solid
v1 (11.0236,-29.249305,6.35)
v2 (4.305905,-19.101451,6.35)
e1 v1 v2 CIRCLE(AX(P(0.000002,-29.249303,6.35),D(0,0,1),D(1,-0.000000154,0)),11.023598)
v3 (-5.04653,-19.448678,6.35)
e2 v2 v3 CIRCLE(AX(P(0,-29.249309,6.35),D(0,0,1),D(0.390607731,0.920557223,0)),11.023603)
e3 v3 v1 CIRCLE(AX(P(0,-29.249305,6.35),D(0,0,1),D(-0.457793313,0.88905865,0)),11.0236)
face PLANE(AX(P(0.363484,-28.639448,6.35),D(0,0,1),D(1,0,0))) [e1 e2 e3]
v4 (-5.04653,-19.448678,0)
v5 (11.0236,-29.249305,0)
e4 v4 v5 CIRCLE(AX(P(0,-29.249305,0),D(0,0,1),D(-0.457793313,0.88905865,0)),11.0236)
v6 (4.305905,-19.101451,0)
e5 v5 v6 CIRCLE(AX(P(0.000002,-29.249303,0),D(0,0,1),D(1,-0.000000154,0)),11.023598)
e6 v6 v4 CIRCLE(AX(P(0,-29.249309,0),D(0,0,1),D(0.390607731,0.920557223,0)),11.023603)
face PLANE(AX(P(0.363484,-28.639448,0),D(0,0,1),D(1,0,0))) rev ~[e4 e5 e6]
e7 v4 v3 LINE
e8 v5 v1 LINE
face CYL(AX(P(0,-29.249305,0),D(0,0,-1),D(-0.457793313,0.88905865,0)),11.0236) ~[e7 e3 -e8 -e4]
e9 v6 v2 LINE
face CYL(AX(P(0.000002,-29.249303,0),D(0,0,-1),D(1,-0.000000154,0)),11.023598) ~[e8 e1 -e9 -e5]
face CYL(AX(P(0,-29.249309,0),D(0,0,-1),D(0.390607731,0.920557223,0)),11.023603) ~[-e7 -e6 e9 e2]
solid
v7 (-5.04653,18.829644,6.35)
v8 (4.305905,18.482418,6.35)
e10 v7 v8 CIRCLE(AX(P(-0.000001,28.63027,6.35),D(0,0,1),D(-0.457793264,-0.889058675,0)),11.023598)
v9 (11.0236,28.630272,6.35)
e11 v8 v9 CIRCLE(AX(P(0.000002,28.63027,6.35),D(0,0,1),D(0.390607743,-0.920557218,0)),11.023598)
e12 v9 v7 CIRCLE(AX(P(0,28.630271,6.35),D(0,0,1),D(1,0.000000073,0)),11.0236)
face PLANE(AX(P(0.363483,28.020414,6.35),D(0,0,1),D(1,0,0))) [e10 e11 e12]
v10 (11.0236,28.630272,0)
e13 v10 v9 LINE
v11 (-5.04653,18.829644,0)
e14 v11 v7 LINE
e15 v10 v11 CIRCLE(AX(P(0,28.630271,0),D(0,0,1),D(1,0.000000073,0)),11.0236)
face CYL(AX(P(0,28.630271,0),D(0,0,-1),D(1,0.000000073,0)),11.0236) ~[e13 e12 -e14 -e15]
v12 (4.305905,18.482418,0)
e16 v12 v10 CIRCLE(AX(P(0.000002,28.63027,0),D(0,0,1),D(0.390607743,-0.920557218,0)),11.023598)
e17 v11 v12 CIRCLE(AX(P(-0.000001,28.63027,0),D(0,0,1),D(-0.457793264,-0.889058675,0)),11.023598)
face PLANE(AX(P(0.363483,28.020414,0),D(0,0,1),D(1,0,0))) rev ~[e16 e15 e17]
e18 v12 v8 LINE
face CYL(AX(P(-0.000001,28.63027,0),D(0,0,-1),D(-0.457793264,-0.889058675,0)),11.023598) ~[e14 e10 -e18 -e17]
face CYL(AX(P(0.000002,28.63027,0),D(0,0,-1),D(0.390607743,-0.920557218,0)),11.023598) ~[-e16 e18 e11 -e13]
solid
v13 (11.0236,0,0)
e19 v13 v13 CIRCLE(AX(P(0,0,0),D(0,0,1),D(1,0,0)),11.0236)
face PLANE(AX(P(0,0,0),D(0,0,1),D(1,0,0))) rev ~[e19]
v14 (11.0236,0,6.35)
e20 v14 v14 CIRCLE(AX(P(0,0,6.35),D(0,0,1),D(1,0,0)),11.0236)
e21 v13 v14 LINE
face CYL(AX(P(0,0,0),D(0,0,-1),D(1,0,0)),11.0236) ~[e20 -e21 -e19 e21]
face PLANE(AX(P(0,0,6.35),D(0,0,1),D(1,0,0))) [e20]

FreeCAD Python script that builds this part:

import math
import FreeCAD as App
import Part
import Sketcher

V = App.Vector
Q = App.Units.Quantity

doc = App.newDocument("Part")
body = doc.addObject("PartDesign::Body", "Body")
body.AllowCompound = True

sketch1 = body.newObject("Sketcher::SketchObject", "Sketch")
sketch1.AttachmentSupport = (doc.getObject("XY_Plane"), [""])
sketch1.MapMode = "FlatFace"
sketch1.addGeometry(Part.Circle(V(0, 0, 0), V(0, 0, 1), 11), False)
sketch1.addGeometry(Part.ArcOfCircle(Part.Circle(V(0, 29, 0), V(0, 0, 1), 11), math.radians(-67), math.radians(0)), False)
sketch1.addGeometry(Part.ArcOfCircle(Part.Circle(V(0, 29, 0), V(0, 0, 1), 11), math.radians(0), math.radians(243)), False)
sketch1.addGeometry(Part.ArcOfCircle(Part.Circle(V(0, 29, 0), V(0, 0, 1), 11), math.radians(-117), math.radians(-67)), False)
sketch1.addGeometry(Part.ArcOfCircle(Part.Circle(V(0, -29, 0), V(0, 0, 1), 11), math.radians(117), math.radians(360)), False)
sketch1.addGeometry(Part.ArcOfCircle(Part.Circle(V(0, -29, 0), V(0, 0, 1), 11), math.radians(0), math.radians(67)), False)
sketch1.addGeometry(Part.ArcOfCircle(Part.Circle(V(0, -29, 0), V(0, 0, 1), 11), math.radians(67), math.radians(117)), False)
sketch1.addConstraint(Sketcher.Constraint("Tangent", 1, 2, 2, 1))
sketch1.addConstraint(Sketcher.Constraint("Tangent", 2, 2, 3, 1))
sketch1.addConstraint(Sketcher.Constraint("Tangent", 3, 2, 1, 1))
sketch1.addConstraint(Sketcher.Constraint("Tangent", 4, 2, 5, 1))
sketch1.addConstraint(Sketcher.Constraint("Tangent", 5, 2, 6, 1))
sketch1.addConstraint(Sketcher.Constraint("Tangent", 6, 2, 4, 1))
sketch1.addConstraint(Sketcher.Constraint("Coincident", 0, 3, -1, 1))
sketch1.addConstraint(Sketcher.Constraint("Equal", 0, 2))
sketch1.addConstraint(Sketcher.Constraint("Equal", 3, 4))
sketch1.addConstraint(Sketcher.Constraint("PointOnObject", 2, 3, -2))
sketch1.addConstraint(Sketcher.Constraint("PointOnObject", 4, 3, -2))
sketch1.addConstraint(Sketcher.Constraint("Horizontal", 2, 3, 1, 2))
sketch1.addConstraint(Sketcher.Constraint("Horizontal", 5, 3, 4, 2))
sketch1.addConstraint(Sketcher.Constraint("Vertical", 3, 2, 5, 2))
sketch1.addConstraint(Sketcher.Constraint("Vertical", 2, 2, 6, 2))
sketch1.addConstraint(Sketcher.Constraint("Diameter", 0, Q("0.868 in")))
sketch1.addConstraint(Sketcher.Constraint("DistanceY", -1, 1, 1, 3, 28.63027))
sketch1.addConstraint(Sketcher.Constraint("DistanceY", 6, 3, -1, 1, 29.249309))
sketch1.addConstraint(Sketcher.Constraint("DistanceX", 2, 2, -1, 1, 5.04653))
sketch1.addConstraint(Sketcher.Constraint("DistanceY", -1, 1, 3, 2, 18.482418))
pad1 = body.newObject("PartDesign::Pad", "Pad")
pad1.Profile = sketch1
pad1.Length = Q("0.25 in")

doc.recompute()
